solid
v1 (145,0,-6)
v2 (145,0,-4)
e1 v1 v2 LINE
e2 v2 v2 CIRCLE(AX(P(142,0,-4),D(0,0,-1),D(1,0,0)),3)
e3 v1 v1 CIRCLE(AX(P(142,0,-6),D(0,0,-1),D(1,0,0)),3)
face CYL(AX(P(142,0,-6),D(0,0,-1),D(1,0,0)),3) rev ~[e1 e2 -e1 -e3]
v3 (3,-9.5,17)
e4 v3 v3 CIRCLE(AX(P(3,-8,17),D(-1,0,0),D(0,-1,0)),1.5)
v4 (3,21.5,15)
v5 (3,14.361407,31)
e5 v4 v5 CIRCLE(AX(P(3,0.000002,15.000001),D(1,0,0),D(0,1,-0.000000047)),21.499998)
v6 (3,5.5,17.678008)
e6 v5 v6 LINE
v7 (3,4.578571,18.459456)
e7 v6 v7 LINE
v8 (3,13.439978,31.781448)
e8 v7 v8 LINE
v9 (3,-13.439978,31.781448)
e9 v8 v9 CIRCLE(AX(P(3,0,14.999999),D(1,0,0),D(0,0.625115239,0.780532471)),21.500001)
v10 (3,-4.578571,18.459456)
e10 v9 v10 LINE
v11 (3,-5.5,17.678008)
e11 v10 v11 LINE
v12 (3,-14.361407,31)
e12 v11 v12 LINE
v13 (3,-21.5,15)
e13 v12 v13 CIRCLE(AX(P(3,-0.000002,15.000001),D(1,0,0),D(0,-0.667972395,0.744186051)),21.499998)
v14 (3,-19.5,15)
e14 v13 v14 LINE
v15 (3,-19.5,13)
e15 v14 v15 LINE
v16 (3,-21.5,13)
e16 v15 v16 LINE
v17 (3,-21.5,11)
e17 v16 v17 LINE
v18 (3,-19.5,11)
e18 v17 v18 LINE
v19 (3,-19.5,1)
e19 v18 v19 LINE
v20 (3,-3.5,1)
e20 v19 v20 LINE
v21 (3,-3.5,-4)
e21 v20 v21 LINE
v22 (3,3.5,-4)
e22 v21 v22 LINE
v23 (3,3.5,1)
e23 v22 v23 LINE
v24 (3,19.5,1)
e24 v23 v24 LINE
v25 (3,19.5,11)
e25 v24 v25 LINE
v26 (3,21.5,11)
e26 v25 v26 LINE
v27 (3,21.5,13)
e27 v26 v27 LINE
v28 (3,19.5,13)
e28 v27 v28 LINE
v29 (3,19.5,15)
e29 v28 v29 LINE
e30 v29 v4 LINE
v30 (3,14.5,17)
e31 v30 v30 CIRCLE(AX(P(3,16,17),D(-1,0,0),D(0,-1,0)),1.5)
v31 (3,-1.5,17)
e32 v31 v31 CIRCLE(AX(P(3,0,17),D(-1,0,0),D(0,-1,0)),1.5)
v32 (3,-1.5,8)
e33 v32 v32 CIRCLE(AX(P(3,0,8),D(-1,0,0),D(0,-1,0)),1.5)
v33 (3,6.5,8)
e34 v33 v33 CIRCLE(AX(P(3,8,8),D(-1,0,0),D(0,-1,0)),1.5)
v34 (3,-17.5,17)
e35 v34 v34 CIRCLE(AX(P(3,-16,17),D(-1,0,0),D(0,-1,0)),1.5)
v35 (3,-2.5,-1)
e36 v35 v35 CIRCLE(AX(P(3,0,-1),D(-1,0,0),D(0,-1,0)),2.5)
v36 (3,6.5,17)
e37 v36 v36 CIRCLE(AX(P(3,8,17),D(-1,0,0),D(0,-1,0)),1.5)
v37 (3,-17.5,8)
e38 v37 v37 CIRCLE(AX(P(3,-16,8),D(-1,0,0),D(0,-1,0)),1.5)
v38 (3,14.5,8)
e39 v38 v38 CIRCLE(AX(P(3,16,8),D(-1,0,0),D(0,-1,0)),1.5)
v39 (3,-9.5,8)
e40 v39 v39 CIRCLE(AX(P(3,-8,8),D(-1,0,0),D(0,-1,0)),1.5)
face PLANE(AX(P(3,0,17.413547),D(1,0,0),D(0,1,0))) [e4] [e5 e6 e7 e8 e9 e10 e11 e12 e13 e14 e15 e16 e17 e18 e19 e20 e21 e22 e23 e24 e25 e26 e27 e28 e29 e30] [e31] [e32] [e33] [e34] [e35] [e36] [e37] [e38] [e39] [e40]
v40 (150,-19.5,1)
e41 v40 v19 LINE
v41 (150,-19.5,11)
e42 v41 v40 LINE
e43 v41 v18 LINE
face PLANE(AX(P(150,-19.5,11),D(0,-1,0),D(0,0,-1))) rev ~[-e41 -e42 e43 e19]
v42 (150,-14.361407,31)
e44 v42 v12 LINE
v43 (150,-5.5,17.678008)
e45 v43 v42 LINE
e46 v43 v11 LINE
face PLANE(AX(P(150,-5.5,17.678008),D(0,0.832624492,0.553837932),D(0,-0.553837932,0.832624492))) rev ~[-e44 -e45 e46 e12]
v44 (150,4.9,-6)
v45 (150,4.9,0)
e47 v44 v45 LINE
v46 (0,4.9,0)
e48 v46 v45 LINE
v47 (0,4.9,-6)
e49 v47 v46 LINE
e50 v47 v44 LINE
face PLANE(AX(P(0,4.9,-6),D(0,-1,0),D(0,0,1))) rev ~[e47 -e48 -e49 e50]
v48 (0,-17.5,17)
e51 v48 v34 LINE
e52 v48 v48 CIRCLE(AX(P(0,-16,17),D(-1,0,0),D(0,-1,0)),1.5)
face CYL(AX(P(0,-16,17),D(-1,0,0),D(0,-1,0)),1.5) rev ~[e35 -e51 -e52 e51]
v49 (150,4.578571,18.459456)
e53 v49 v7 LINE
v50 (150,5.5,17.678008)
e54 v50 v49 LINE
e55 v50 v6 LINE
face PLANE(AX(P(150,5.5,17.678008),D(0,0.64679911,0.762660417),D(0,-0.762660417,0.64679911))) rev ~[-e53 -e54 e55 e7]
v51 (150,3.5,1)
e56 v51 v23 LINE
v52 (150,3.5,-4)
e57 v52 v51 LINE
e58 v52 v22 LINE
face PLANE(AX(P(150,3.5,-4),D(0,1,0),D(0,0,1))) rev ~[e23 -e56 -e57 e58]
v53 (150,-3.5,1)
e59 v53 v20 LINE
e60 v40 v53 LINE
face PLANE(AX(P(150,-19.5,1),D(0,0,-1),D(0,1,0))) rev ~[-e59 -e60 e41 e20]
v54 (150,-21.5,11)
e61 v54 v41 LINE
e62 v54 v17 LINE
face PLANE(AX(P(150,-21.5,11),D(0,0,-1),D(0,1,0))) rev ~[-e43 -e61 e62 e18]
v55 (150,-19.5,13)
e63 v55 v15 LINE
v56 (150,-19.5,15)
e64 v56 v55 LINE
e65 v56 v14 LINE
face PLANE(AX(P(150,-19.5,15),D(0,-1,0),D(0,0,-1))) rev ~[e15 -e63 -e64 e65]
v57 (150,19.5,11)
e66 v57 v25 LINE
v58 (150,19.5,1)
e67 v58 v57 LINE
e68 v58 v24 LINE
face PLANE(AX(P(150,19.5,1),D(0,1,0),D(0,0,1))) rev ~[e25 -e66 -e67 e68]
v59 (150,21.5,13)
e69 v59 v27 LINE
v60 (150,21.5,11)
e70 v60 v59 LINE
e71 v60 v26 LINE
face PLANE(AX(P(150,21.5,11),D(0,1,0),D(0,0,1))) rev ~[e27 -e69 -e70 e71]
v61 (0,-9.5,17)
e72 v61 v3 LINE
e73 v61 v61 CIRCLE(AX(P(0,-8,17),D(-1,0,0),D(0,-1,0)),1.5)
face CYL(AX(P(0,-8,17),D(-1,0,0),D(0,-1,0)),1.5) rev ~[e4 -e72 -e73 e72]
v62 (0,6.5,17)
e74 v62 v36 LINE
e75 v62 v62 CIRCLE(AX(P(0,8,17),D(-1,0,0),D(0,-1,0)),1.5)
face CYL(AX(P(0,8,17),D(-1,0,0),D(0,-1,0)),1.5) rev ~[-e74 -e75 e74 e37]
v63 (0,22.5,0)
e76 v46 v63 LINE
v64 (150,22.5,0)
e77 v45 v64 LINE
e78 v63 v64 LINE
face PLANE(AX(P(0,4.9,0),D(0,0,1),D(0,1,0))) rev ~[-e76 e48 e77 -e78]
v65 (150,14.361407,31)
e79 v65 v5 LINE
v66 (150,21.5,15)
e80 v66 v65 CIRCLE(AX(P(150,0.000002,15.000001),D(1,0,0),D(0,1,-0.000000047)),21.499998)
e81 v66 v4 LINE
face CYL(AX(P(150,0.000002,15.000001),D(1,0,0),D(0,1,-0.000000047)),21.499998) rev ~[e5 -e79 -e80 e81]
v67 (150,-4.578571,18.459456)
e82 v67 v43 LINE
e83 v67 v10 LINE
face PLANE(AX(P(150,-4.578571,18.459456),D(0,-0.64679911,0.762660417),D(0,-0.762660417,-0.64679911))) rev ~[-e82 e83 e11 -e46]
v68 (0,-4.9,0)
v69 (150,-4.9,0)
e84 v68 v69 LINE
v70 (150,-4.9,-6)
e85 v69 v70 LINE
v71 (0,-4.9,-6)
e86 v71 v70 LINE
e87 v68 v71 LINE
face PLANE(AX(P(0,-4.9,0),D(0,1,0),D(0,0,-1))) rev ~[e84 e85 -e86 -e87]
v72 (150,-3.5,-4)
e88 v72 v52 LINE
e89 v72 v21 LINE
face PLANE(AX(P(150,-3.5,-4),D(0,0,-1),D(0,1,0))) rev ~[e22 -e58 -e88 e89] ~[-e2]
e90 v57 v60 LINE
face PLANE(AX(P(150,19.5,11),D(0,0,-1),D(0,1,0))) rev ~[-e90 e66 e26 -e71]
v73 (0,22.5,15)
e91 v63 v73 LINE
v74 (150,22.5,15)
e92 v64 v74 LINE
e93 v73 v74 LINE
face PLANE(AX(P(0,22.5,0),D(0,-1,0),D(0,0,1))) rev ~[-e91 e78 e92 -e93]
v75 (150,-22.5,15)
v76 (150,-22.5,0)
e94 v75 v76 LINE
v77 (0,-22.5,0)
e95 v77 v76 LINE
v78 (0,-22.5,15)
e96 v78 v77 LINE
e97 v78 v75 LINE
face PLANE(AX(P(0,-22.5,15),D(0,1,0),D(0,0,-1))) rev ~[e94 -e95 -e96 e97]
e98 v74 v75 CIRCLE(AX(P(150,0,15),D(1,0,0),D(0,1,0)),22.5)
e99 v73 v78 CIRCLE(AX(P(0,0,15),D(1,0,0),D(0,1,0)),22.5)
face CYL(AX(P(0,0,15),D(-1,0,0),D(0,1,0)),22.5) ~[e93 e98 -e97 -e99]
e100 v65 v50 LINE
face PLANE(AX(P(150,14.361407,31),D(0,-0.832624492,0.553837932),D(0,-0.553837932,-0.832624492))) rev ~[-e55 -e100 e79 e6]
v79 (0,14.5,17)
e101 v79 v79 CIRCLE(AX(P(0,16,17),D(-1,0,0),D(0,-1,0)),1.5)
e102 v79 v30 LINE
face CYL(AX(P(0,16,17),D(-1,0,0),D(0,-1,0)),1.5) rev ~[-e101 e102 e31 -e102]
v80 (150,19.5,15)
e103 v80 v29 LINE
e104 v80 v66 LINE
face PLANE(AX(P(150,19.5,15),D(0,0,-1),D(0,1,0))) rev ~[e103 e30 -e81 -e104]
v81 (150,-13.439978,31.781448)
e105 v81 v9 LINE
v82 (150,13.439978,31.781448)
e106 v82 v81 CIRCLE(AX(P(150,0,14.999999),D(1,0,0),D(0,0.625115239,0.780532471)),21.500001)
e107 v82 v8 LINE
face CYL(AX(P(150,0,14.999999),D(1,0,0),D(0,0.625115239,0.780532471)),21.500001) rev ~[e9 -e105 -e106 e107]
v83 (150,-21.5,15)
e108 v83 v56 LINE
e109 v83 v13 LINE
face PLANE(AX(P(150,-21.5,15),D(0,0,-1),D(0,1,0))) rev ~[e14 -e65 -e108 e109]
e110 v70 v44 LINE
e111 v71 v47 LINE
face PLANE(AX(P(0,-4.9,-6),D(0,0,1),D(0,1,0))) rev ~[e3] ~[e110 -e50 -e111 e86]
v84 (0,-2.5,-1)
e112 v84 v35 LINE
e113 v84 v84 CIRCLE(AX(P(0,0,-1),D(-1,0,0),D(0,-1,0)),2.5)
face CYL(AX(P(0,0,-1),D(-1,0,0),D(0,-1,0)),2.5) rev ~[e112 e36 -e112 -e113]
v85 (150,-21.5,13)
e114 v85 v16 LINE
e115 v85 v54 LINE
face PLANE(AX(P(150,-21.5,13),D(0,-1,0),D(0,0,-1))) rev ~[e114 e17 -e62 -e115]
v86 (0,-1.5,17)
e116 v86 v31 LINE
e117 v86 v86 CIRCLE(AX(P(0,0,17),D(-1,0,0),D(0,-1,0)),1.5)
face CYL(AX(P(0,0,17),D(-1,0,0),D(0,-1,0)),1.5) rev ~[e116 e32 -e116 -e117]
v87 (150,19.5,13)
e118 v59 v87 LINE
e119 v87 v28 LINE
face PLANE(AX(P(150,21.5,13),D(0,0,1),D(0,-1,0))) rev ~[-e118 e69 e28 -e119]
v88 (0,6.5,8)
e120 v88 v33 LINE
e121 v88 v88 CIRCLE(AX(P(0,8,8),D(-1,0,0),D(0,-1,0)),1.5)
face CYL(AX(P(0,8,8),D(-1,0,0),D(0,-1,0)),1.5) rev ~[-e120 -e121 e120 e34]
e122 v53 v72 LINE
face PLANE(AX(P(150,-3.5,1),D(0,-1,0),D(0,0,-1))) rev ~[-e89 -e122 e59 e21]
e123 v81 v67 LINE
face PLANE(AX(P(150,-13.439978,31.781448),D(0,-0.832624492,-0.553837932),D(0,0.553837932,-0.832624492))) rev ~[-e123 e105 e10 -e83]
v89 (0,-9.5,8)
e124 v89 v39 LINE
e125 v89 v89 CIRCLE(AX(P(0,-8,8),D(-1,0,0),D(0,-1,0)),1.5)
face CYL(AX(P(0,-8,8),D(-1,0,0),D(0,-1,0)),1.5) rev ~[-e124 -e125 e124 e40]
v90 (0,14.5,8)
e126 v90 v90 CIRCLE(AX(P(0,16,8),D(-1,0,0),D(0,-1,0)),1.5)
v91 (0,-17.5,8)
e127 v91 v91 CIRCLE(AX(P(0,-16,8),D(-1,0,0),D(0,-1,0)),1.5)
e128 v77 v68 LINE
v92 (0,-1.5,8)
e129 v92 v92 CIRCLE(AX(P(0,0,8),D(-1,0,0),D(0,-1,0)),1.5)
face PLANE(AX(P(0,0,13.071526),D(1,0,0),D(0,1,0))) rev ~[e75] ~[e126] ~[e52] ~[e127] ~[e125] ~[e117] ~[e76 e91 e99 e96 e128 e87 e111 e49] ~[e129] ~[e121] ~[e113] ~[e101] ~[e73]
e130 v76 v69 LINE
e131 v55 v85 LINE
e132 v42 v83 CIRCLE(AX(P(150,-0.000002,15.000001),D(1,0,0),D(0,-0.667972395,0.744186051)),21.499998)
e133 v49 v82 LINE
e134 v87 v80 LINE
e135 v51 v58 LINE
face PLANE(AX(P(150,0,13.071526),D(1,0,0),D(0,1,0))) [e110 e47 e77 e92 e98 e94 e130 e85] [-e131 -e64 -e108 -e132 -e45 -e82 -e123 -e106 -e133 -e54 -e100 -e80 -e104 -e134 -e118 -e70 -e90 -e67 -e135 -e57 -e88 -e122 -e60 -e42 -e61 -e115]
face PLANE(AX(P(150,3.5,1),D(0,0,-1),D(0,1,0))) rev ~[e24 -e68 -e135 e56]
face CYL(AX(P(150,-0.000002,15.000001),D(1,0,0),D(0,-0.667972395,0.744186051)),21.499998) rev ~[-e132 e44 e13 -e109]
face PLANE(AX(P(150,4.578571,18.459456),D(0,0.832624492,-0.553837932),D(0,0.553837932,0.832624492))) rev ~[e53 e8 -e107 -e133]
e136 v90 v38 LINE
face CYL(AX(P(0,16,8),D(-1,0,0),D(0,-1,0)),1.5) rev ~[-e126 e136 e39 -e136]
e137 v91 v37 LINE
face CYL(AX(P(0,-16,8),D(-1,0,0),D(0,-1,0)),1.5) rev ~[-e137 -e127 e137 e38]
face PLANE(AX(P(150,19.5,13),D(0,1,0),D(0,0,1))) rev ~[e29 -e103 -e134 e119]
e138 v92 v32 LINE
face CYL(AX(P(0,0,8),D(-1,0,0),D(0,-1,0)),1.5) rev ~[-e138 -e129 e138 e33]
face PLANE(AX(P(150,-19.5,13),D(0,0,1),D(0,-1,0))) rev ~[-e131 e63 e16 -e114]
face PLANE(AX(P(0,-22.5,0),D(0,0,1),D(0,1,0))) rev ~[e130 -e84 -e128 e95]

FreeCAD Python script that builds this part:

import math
import FreeCAD as App
import Part
import Sketcher

V = App.Vector
Q = App.Units.Quantity

doc = App.newDocument("Part")
body = doc.addObject("PartDesign::Body", "Body")

# Sketch on YZ plane
sketch1 = doc.addObject("Sketcher::SketchObject", "Sketch")
body.addObject(sketch1)
sketch1.AttachmentSupport = (doc.YZ_Plane, [""])
sketch1.MapMode = "FlatFace"
sketch1.addGeometry([
    Part.LineSegment(V(-22, 15, 0), V(-22, 0, 0)),  # 0
    Part.LineSegment(V(-22, 0, 0), V(-5, 0, 0)),  # 1
    Part.LineSegment(V(-5, 0, 0), V(-5, -6, 0)),  # 2
    Part.LineSegment(V(-5, -6, 0), V(5, -6, 0)),  # 3
    Part.LineSegment(V(5, -6, 0), V(5, 0, 0)),  # 4
    Part.LineSegment(V(5, 0, 0), V(22, 0, 0)),  # 5
    Part.LineSegment(V(22, 0, 0), V(22, 15, 0)),  # 6
    Part.ArcOfCircle(Part.Circle(V(0, 15, 0), V(0, 0, 1), 22), math.radians(0), math.radians(180)),  # 7
], False)
sketch1.addConstraint([
    Sketcher.Constraint("Coincident", 0, 2, 1, 1),
    Sketcher.Constraint("Coincident", 1, 2, 2, 1),
    Sketcher.Constraint("Coincident", 2, 2, 3, 1),
    Sketcher.Constraint("Coincident", 3, 2, 4, 1),
    Sketcher.Constraint("Coincident", 4, 2, 5, 1),
    Sketcher.Constraint("Coincident", 5, 2, 6, 1),
    Sketcher.Constraint("Tangent", 6, 2, 7, 1),
    Sketcher.Constraint("Tangent", 7, 2, 0, 1),
    Sketcher.Constraint("Vertical", 0),
    Sketcher.Constraint("Horizontal", 1),
    Sketcher.Constraint("Vertical", 2),
    Sketcher.Constraint("Horizontal", 3),
    Sketcher.Constraint("Vertical", 4),
    Sketcher.Constraint("Horizontal", 5),
    Sketcher.Constraint("Vertical", 6),
    Sketcher.Constraint("Symmetric", 1, 2, 4, 2, -1, 1),
    Sketcher.Constraint("Symmetric", 0, 2, 5, 2, -2),
    Sketcher.Constraint("Radius", 7, Q("22.5 mm")),
    Sketcher.Constraint("DistanceY", 0, 2, 0, 1, Q("15 mm")),
    Sketcher.Constraint("DistanceY", 2, 2, 2, 1, Q("6 mm")),
    Sketcher.Constraint("DistanceX", 1, 1, 1, 2, Q("17.6 mm")),
])
pad1 = doc.addObject("PartDesign::Pad", "Pad")
body.addObject(pad1)
pad1.Profile = sketch1
pad1.Length = 150

# Sketch on YZ plane
sketch2 = doc.addObject("Sketcher::SketchObject", "Sketch001")
body.addObject(sketch2)
sketch2.AttachmentSupport = (doc.YZ_Plane, [""])
sketch2.MapMode = "FlatFace"
sketch2.AttachmentOffset = App.Placement(V(0, 0, 150), App.Rotation())
sketch2.addGeometry([
    Part.LineSegment(V(-19.5, 11, 0), V(-19.5, 1, 0)),  # 0
    Part.LineSegment(V(-19.5, 1, 0), V(-3.5, 1, 0)),  # 1
    Part.LineSegment(V(-3.5, 1, 0), V(-3.5, -4, 0)),  # 2
    Part.LineSegment(V(-3.5, -4, 0), V(3.5, -4, 0)),  # 3
    Part.LineSegment(V(3.5, -4, 0), V(3.5, 1, 0)),  # 4
    Part.LineSegment(V(3.5, 1, 0), V(19.5, 1, 0)),  # 5
    Part.LineSegment(V(19.5, 1, 0), V(19.5, 11, 0)),  # 6
    Part.LineSegment(V(19.5, 11, 0), V(21.5, 11, 0)),  # 7
    Part.LineSegment(V(21.5, 11, 0), V(21.5, 13, 0)),  # 8
    Part.LineSegment(V(21.5, 13, 0), V(19.5, 13, 0)),  # 9
    Part.LineSegment(V(19.5, 13, 0), V(19.5, 15, 0)),  # 10
    Part.LineSegment(V(19.5, 15, 0), V(21.5, 15, 0)),  # 11
    Part.ArcOfCircle(Part.Circle(V(0, 15, 0), V(0, 0, 1), 21.5), math.radians(0), math.radians(48)),  # 12
    Part.LineSegment(V(14.4, 31, 0), V(5.5, 17.7, 0)),  # 13
    Part.LineSegment(V(5.5, 17.7, 0), V(4.6, 18.5, 0)),  # 14
    Part.LineSegment(V(4.6, 18.5, 0), V(13.4, 31.8, 0)),  # 15
    Part.ArcOfCircle(Part.Circle(V(0, 15, 0), V(0, 0, 1), 21.5), math.radians(51), math.radians(129)),  # 16
    Part.LineSegment(V(-13.4, 31.8, 0), V(-4.6, 18.5, 0)),  # 17
    Part.LineSegment(V(-4.6, 18.5, 0), V(-5.5, 17.7, 0)),  # 18
    Part.LineSegment(V(-5.5, 17.7, 0), V(-14.4, 31, 0)),  # 19
    Part.ArcOfCircle(Part.Circle(V(0, 15, 0), V(0, 0, 1), 21.5), math.radians(132), math.radians(180)),  # 20
    Part.LineSegment(V(-21.5, 15, 0), V(-19.5, 15, 0)),  # 21
    Part.LineSegment(V(-19.5, 15, 0), V(-19.5, 13, 0)),  # 22
    Part.LineSegment(V(-19.5, 13, 0), V(-21.5, 13, 0)),  # 23
    Part.LineSegment(V(-21.5, 13, 0), V(-21.5, 11, 0)),  # 24
    Part.LineSegment(V(-21.5, 11, 0), V(-19.5, 11, 0)),  # 25
], False)
sketch2.addConstraint([
    Sketcher.Constraint("Coincident", 0, 2, 1, 1),
    Sketcher.Constraint("Coincident", 1, 2, 2, 1),
    Sketcher.Constraint("Coincident", 2, 2, 3, 1),
    Sketcher.Constraint("Coincident", 3, 2, 4, 1),
    Sketcher.Constraint("Coincident", 4, 2, 5, 1),
    Sketcher.Constraint("Coincident", 5, 2, 6, 1),
    Sketcher.Constraint("Coincident", 6, 2, 7, 1),
    Sketcher.Constraint("Coincident", 7, 2, 8, 1),
    Sketcher.Constraint("Coincident", 8, 2, 9, 1),
    Sketcher.Constraint("Coincident", 9, 2, 10, 1),
    Sketcher.Constraint("Coincident", 10, 2, 11, 1),
    Sketcher.Constraint("Coincident", 11, 2, 12, 1),
    Sketcher.Constraint("Coincident", 12, 2, 13, 1),
    Sketcher.Constraint("Coincident", 13, 2, 14, 1),
    Sketcher.Constraint("Coincident", 14, 2, 15, 1),
    Sketcher.Constraint("Coincident", 15, 2, 16, 1),
    Sketcher.Constraint("Coincident", 16, 2, 17, 1),
    Sketcher.Constraint("Coincident", 17, 2, 18, 1),
    Sketcher.Constraint("Coincident", 18, 2, 19, 1),
    Sketcher.Constraint("Coincident", 19, 2, 20, 1),
    Sketcher.Constraint("Coincident", 20, 2, 21, 1),
    Sketcher.Constraint("Coincident", 21, 2, 22, 1),
    Sketcher.Constraint("Coincident", 22, 2, 23, 1),
    Sketcher.Constraint("Coincident", 23, 2, 24, 1),
    Sketcher.Constraint("Coincident", 24, 2, 25, 1),
    Sketcher.Constraint("Coincident", 25, 2, 0, 1),
    Sketcher.Constraint("Vertical", 0),
    Sketcher.Constraint("Horizontal", 1),
    Sketcher.Constraint("Vertical", 2),
    Sketcher.Constraint("Horizontal", 3),
    Sketcher.Constraint("Vertical", 4),
    Sketcher.Constraint("Horizontal", 5),
    Sketcher.Constraint("Vertical", 6),
    Sketcher.Constraint("Horizontal", 7),
    Sketcher.Constraint("Vertical", 8),
    Sketcher.Constraint("Horizontal", 9),
    Sketcher.Constraint("Vertical", 10),
    Sketcher.Constraint("Horizontal", 11),
    Sketcher.Constraint("Horizontal", 21),
    Sketcher.Constraint("Vertical", 22),
    Sketcher.Constraint("Horizontal", 23),
    Sketcher.Constraint("Vertical", 24),
    Sketcher.Constraint("Horizontal", 25),
    Sketcher.Constraint("Coincident", 16, 3, 12, 3),
    Sketcher.Constraint("Coincident", 20, 3, 12, 3),
    Sketcher.Constraint("Equal", 12, 20),
    Sketcher.Constraint("Symmetric", 1, 2, 4, 2, -2),
    Sketcher.Constraint("Symmetric", 15, 2, 16, 2, -2),
    Sketcher.Constraint("Symmetric", 14, 2, 17, 2, -2),
    Sketcher.Constraint("Symmetric", 13, 2, 18, 2, -2),
    Sketcher.Constraint("Symmetric", 10, 2, 21, 2, -2),
    Sketcher.Constraint("Symmetric", 8, 2, 23, 2, -2),
    Sketcher.Constraint("Symmetric", 6, 2, 25, 2, -2),
    Sketcher.Constraint("Parallel", 13, 15),
    Sketcher.Constraint("Parallel", 17, 19),
    Sketcher.Constraint("Horizontal", 20, 3, 10, 2),
    Sketcher.Constraint("Vertical", 6, 2, 9, 2),
    Sketcher.Constraint("Vertical", 8, 2, 11, 2),
    Sketcher.Constraint("Equal", 25, 8),
    Sketcher.Constraint("Equal", 8, 10),
    Sketcher.Constraint("Equal", 13, 15),
    Sketcher.Constraint("Radius", 12, Q("21.499998 mm")),
    Sketcher.Constraint("Radius", 16, Q("21.500001 mm")),
    Sketcher.Constraint("DistanceX", 1, 1, 1, 2, Q("16 mm")),
    Sketcher.Constraint("DistanceX", 3, 1, 3, 2, Q("7 mm")),
    Sketcher.Constraint("DistanceY", 0, 2, 0, 1, Q("10 mm")),
    Sketcher.Constraint("DistanceY", 2, 2, 2, 1, Q("5 mm")),
    Sketcher.Constraint("Distance", 13, Q("16 mm")),
    Sketcher.Constraint("DistanceY", -1, 1, 12, 3, Q("15.000001 mm")),
    Sketcher.Constraint("DistanceY", -1, 1, 12, 2, Q("31 mm")),
    Sketcher.Constraint("DistanceX", 13, 2, 10, 2, Q("14 mm")),
    Sketcher.Constraint("DistanceX", -1, 1, 14, 2, Q("4.578571 mm")),
])
pocket1 = doc.addObject("PartDesign::Pocket", "Pocket")
body.addObject(pocket1)
pocket1.Profile = sketch2
pocket1.Length = 147

# Sketch on YZ plane
sketch3 = doc.addObject("Sketcher::SketchObject", "Sketch002")
body.addObject(sketch3)
sketch3.AttachmentSupport = (doc.YZ_Plane, [""])
sketch3.MapMode = "FlatFace"
sketch3.addGeometry(Part.Circle(V(0, -1, 0), V(0, 0, 1), 2.5), False)
sketch3.addConstraint([
    Sketcher.Constraint("PointOnObject", 0, 3, -2),
    Sketcher.Constraint("Diameter", 0, Q("5 mm")),
    Sketcher.Constraint("DistanceY", 0, 3, -1, 1, Q("1 mm")),
])
pocket2 = doc.addObject("PartDesign::Pocket", "Pocket001")
body.addObject(pocket2)
pocket2.Profile = sketch3
pocket2.Type = "ThroughAll"
pocket2.Reversed = True

# Sketch on YZ plane
sketch4 = doc.addObject("Sketcher::SketchObject", "Sketch003")
body.addObject(sketch4)
sketch4.AttachmentSupport = (doc.YZ_Plane, [""])
sketch4.MapMode = "FlatFace"
sketch4.addGeometry([
    Part.Circle(V(16, 8, 0), V(0, 0, 1), 1.5),  # 0
    Part.Circle(V(16, 17, 0), V(0, 0, 1), 1.5),  # 1
    Part.Circle(V(8, 8, 0), V(0, 0, 1), 1.5),  # 2
    Part.Circle(V(8, 17, 0), V(0, 0, 1), 1.5),  # 3
    Part.Circle(V(0, 8, 0), V(0, 0, 1), 1.5),  # 4
    Part.Circle(V(0, 17, 0), V(0, 0, 1), 1.5),  # 5
    Part.Circle(V(-8, 8, 0), V(0, 0, 1), 1.5),  # 6
    Part.Circle(V(-8, 17, 0), V(0, 0, 1), 1.5),  # 7
    Part.Circle(V(-16, 8, 0), V(0, 0, 1), 1.5),  # 8
    Part.Circle(V(-16, 17, 0), V(0, 0, 1), 1.5),  # 9
], False)
sketch4.addConstraint([
    Sketcher.Constraint("Equal", 0, 1),
    Sketcher.Constraint("Equal", 1, 2),
    Sketcher.Constraint("Equal", 2, 3),
    Sketcher.Constraint("Equal", 3, 4),
    Sketcher.Constraint("Equal", 4, 5),
    Sketcher.Constraint("Equal", 5, 6),
    Sketcher.Constraint("Equal", 6, 7),
    Sketcher.Constraint("Equal", 7, 8),
    Sketcher.Constraint("Equal", 8, 9),
    Sketcher.Constraint("Symmetric", 2, 3, 6, 3, -2),
    Sketcher.Constraint("Symmetric", 3, 3, 7, 3, -2),
    Sketcher.Constraint("Symmetric", 0, 3, 8, 3, -2),
    Sketcher.Constraint("Symmetric", 1, 3, 9, 3, -2),
    Sketcher.Constraint("PointOnObject", 4, 3, -2),
    Sketcher.Constraint("PointOnObject", 5, 3, -2),
    Sketcher.Constraint("Horizontal", 0, 3, 2, 3),
    Sketcher.Constraint("Horizontal", 1, 3, 3, 3),
    Sketcher.Constraint("Horizontal", 2, 3, 4, 3),
    Sketcher.Constraint("Horizontal", 3, 3, 5, 3),
    Sketcher.Constraint("Vertical", 0, 3, 1, 3),
    Sketcher.Constraint("Vertical", 2, 3, 3, 3),
    Sketcher.Constraint("Diameter", 0, Q("3 mm")),
    Sketcher.Constraint("DistanceX", -1, 1, 0, 3, Q("16 mm")),
    Sketcher.Constraint("DistanceY", -1, 1, 0, 3, Q("8 mm")),
    Sketcher.Constraint("DistanceY", -1, 1, 1, 3, Q("17 mm")),
    Sketcher.Constraint("DistanceX", -1, 1, 2, 3, Q("8 mm")),
])
pocket3 = doc.addObject("PartDesign::Pocket", "Pocket002")
body.addObject(pocket3)
pocket3.Profile = sketch4
pocket3.Type = "ThroughAll"
pocket3.Reversed = True

# Sketch on XY plane
sketch5 = doc.addObject("Sketcher::SketchObject", "Sketch004")
body.addObject(sketch5)
sketch5.AttachmentSupport = (doc.XY_Plane, [""])
sketch5.MapMode = "FlatFace"
sketch5.AttachmentOffset = App.Placement(V(0, 0, -6), App.Rotation())
sketch5.addGeometry(Part.Circle(V(142, 0, 0), V(0, 0, 1), 3), False)
sketch5.addConstraint([
    Sketcher.Constraint("PointOnObject", 0, 3, -1),
    Sketcher.Constraint("Diameter", 0, Q("6 mm")),
    Sketcher.Constraint("DistanceX", -1, 1, 0, 3, Q("142 mm")),
])
pocket4 = doc.addObject("PartDesign::Pocket", "Pocket003")
body.addObject(pocket4)
pocket4.Profile = sketch5
pocket4.Length = 2
pocket4.Reversed = True

doc.recompute()
